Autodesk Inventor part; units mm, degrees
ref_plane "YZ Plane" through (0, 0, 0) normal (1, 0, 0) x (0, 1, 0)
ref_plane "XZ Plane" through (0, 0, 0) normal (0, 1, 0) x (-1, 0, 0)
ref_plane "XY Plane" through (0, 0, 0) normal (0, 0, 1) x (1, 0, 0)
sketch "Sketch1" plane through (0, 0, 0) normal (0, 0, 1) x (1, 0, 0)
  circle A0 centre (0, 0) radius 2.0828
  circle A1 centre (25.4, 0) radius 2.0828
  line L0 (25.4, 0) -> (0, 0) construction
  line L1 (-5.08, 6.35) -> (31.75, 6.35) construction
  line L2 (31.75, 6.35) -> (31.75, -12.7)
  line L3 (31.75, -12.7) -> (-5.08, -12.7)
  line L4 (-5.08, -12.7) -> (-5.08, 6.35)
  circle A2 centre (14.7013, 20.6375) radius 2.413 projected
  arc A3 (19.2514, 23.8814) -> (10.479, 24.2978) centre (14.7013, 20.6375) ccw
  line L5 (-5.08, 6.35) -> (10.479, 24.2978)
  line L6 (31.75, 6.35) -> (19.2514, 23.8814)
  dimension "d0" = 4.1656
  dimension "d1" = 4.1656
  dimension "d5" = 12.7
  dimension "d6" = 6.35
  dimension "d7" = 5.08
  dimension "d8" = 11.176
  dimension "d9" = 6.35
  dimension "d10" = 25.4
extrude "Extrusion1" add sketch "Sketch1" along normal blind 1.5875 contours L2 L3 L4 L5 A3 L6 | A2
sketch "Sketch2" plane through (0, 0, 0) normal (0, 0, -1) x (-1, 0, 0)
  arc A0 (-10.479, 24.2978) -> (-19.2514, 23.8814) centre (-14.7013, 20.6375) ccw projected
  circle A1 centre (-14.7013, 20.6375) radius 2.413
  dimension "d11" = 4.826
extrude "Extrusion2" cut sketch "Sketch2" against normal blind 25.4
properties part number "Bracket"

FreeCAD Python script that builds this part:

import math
import FreeCAD as App
import Part
import Sketcher
from FreeCAD import Vector
Q = App.Units.Quantity

doc = App.newDocument("Part")
body = doc.addObject("PartDesign::Body", "Body")

sketch1 = body.newObject("Sketcher::SketchObject", "Sketch")
sketch1.AttachmentSupport = (doc.getObject("XY_Plane"), [""])
sketch1.MapMode = "FlatFace"
sketch1.addGeometry([
    Part.LineSegment(Vector(31.8, -12.7, 0), Vector(31.8, 6.3, 0)),
    Part.LineSegment(Vector(31.8, 6.3, 0), Vector(19.3, 23.9, 0)),
    Part.ArcOfCircle(Part.Circle(Vector(14.7, 20.6, 0), Vector(0, 0, 1), 5.6), math.radians(35), math.radians(139)),
    Part.LineSegment(Vector(10.5, 24.3, 0), Vector(-5.1, 6.3, 0)),
    Part.LineSegment(Vector(-5.1, 6.3, 0), Vector(-5.1, -12.7, 0)),
    Part.LineSegment(Vector(-5.1, -12.7, 0), Vector(31.8, -12.7, 0)),
    Part.Circle(Vector(0, 0, 0), Vector(0, 0, 1), 2.1),
    Part.Circle(Vector(25.4, 0, 0), Vector(0, 0, 1), 2.1),
], False)
sketch1.addConstraint([
    Sketcher.Constraint("Coincident", 0, 2, 1, 1),
    Sketcher.Constraint("Tangent", 1, 2, 2, 1),
    Sketcher.Constraint("Tangent", 2, 2, 3, 1),
    Sketcher.Constraint("Coincident", 3, 2, 4, 1),
    Sketcher.Constraint("Coincident", 4, 2, 5, 1),
    Sketcher.Constraint("Coincident", 5, 2, 0, 1),
    Sketcher.Constraint("Vertical", 0),
    Sketcher.Constraint("Vertical", 4),
    Sketcher.Constraint("Horizontal", 5),
    Sketcher.Constraint("Coincident", 6, 3, -1, 1),
    Sketcher.Constraint("Equal", 6, 7),
    Sketcher.Constraint("PointOnObject", 7, 3, -1),
    Sketcher.Constraint("Horizontal", 0, 2, 3, 2),
    Sketcher.Constraint("Radius", 2, Q("0.22 in")),
    Sketcher.Constraint("Diameter", 6, Q("0.164 in")),
    Sketcher.Constraint("DistanceX", -1, 1, 7, 3, Q("1 in")),
    Sketcher.Constraint("DistanceX", 3, 2, -1, 1, Q("0.2 in")),
    Sketcher.Constraint("DistanceY", 4, 2, -1, 1, Q("0.5 in")),
    Sketcher.Constraint("DistanceY", -1, 1, 0, 2, Q("0.25 in")),
    Sketcher.Constraint("DistanceX", 7, 3, 0, 2, Q("0.25 in")),
    Sketcher.Constraint("DistanceY", -1, 1, 2, 3, Q("0.8125 in")),
    Sketcher.Constraint("DistanceX", -1, 1, 2, 3, Q("0.5788 in")),
])
pad1 = body.newObject("PartDesign::Pad", "Pad")
pad1.Profile = sketch1
pad1.Length = Q("0.0625 in")

sketch2 = body.newObject("Sketcher::SketchObject", "Sketch001")
sketch2.AttachmentSupport = (doc.getObject("XY_Plane"), [""])
sketch2.MapMode = "FlatFace"
sketch2.addGeometry(Part.Circle(Vector(14.7, 20.6, 0), Vector(0, 0, 1), 2.4), False)
sketch2.addConstraint([
    Sketcher.Constraint("Diameter", 0, Q("0.19 in")),
    Sketcher.Constraint("DistanceY", -1, 1, 0, 3, Q("0.8125 in")),
    Sketcher.Constraint("DistanceX", -1, 1, 0, 3, Q("0.5788 in")),
])
pocket1 = body.newObject("PartDesign::Pocket", "Pocket")
pocket1.Profile = sketch2
pocket1.Length = Q("1 in")
pocket1.Reversed = True

doc.recompute()
